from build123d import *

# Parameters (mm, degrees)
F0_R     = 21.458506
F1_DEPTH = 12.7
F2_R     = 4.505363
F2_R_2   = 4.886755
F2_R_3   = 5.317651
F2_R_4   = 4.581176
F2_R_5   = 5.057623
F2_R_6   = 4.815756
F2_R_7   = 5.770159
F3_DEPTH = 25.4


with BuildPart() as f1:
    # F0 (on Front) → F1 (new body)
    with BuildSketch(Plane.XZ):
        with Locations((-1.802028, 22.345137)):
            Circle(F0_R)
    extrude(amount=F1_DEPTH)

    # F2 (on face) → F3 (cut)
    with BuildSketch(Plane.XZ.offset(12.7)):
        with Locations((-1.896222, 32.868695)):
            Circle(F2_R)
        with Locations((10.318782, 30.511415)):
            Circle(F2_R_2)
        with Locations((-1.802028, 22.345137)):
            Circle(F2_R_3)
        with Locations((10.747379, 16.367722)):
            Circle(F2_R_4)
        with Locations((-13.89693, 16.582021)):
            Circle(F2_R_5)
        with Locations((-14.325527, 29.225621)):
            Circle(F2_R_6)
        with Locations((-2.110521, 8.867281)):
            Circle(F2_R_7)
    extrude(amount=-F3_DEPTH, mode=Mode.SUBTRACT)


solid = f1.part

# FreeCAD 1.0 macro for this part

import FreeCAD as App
import Part
import Sketcher
from FreeCAD import Vector
Q = App.Units.Quantity

doc = App.newDocument("Part")
body = doc.addObject("PartDesign::Body", "Body")

# Sketch on XZ plane
sketch1 = body.newObject("Sketcher::SketchObject", "Sketch")
sketch1.AttachmentSupport = (doc.getObject("XZ_Plane"), [""])
sketch1.MapMode = "FlatFace"
sketch1.addGeometry(Part.Circle(Vector(-2, 22, 0), Vector(0, 0, 1), 21), False)
sketch1.addConstraint([
    Sketcher.Constraint("Diameter", 0, 42.917012),
    Sketcher.Constraint("DistanceX", 0, 3, -1, 1, 1.802028),
    Sketcher.Constraint("DistanceY", -1, 1, 0, 3, 22.345137),
])
pad1 = body.newObject("PartDesign::Pad", "Pad")
pad1.Profile = sketch1
pad1.Length = Q("0.5 in")

# Sketch on XZ plane
sketch2 = body.newObject("Sketcher::SketchObject", "Sketch001")
sketch2.AttachmentSupport = (doc.getObject("XZ_Plane"), [""])
sketch2.MapMode = "FlatFace"
sketch2.AttachmentOffset = App.Placement(Vector(0, 0, 0.5 * 25.4), App.Rotation())
sketch2.addGeometry([
    Part.Circle(Vector(-1.9, 32.9, 0), Vector(0, 0, 1), 4.5),  # 0
    Part.Circle(Vector(10.3, 30.5, 0), Vector(0, 0, 1), 4.9),  # 1
    Part.Circle(Vector(-1.8, 22.3, 0), Vector(0, 0, 1), 5.3),  # 2
    Part.Circle(Vector(10.7, 16.4, 0), Vector(0, 0, 1), 4.6),  # 3
    Part.Circle(Vector(-13.9, 16.6, 0), Vector(0, 0, 1), 5.1),  # 4
    Part.Circle(Vector(-14.3, 29.2, 0), Vector(0, 0, 1), 4.8),  # 5
    Part.Circle(Vector(-2.1, 8.9, 0), Vector(0, 0, 1), 5.8),  # 6
], False)
sketch2.addConstraint([
    Sketcher.Constraint("Diameter", 2, 10.635302),
    Sketcher.Constraint("Diameter", 1, 9.77351),
    Sketcher.Constraint("Diameter", 0, 9.010726),
    Sketcher.Constraint("Diameter", 3, 9.162352),
    Sketcher.Constraint("Diameter", 4, 10.115246),
    Sketcher.Constraint("Diameter", 5, 9.631512),
    Sketcher.Constraint("Diameter", 6, 11.540318),
    Sketcher.Constraint("DistanceX", 0, 3, 3, 3, 12.643601),
    Sketcher.Constraint("DistanceX", 4, 3, 2, 3, 12.094902),
    Sketcher.Constraint("DistanceY", 3, 3, 4, 3, 0.214299),
    Sketcher.Constraint("DistanceY", 4, 3, 5, 3, 12.6436),
    Sketcher.Constraint("DistanceX", 5, 3, 2, 3, 12.523499),
    Sketcher.Constraint("DistanceX", 6, 3, 3, 3, 12.8579),
    Sketcher.Constraint("DistanceX", -1, 1, 3, 3, 10.747379),
    Sketcher.Constraint("DistanceX", 4, 3, -1, 1, 13.89693),
    Sketcher.Constraint("DistanceY", -1, 1, 4, 3, 16.582021),
    Sketcher.Constraint("DistanceY", -1, 1, 6, 3, 8.867281),
    Sketcher.Constraint("DistanceY", 1, 3, 0, 3, 2.35728),
    Sketcher.Constraint("DistanceY", 2, 3, 0, 3, 10.523558),
    Sketcher.Constraint("DistanceX", 2, 3, 1, 3, 12.12081),
    Sketcher.Constraint("DistanceY", -1, 1, 0, 3, 32.868695),
])
pocket1 = body.newObject("PartDesign::Pocket", "Pocket")
pocket1.Profile = sketch2
pocket1.Length = Q("1 in")

doc.recompute()
